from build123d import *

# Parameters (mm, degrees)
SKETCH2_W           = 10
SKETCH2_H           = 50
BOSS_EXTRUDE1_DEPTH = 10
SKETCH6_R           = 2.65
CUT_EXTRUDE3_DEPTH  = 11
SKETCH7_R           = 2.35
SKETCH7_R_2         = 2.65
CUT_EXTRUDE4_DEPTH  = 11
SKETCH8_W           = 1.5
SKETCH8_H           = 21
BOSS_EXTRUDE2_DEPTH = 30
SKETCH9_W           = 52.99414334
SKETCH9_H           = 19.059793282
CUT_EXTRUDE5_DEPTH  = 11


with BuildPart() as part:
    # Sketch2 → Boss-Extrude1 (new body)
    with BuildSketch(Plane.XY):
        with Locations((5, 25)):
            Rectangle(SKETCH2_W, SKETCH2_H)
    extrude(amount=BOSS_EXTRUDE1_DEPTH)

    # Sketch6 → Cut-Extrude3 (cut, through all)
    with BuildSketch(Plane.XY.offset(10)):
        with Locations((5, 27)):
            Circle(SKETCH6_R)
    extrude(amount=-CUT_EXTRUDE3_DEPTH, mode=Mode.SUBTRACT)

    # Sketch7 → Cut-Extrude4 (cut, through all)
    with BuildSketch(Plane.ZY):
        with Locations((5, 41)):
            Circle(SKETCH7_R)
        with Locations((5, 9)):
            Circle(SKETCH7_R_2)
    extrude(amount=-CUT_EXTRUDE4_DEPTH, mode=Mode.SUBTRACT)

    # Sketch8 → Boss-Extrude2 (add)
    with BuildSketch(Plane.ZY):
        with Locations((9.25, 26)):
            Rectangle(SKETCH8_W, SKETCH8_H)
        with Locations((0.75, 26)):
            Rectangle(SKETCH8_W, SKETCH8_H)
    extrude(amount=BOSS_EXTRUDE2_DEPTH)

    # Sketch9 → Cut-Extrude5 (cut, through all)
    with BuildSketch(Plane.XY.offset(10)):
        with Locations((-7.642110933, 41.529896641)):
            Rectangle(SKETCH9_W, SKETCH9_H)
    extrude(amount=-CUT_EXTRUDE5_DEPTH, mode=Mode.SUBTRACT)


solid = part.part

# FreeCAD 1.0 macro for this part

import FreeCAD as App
import Part
import Sketcher


def add_polygon(sketch, points):
    """Adds a closed chain of lines whose ends are joined by coincident constraints."""
    first, n = sketch.GeometryCount, len(points)
    for a, b in zip(points, points[1:] + points[:1]):
        sketch.addGeometry(Part.LineSegment(App.Vector(*a, 0), App.Vector(*b, 0)), False)
    for i in range(n):
        sketch.addConstraint(Sketcher.Constraint("Coincident", first + i, 2, first + (i + 1) % n, 1))

doc = App.newDocument("Part")
params = doc.addObject("Spreadsheet::Sheet", "Params")
for row, (alias, value) in enumerate([
    ("sketch1_width", "10 mm"),
    ("sketch1_height", "50 mm"),
    ("pad1_length", "10 mm"),
    ("sketch2_diameter", "5.3 mm"),
    ("sketch3_diameter", "4.7 mm"),
    ("sketch3_diameter2", "5.3 mm"),
    ("sketch4_width", "21 mm"),
    ("sketch4_height", "1.5 mm"),
    ("pad2_length", "30 mm"),
], start=1):
    params.set(f"A{row}", alias)
    params.set(f"B{row}", "=" + value)
    params.setAlias(f"B{row}", alias)

body = doc.addObject("PartDesign::Body", "Body")

# Sketch on XY plane
sketch1 = doc.addObject("Sketcher::SketchObject", "Sketch")
body.addObject(sketch1)
sketch1.AttachmentSupport = (doc.XY_Plane, [""])
sketch1.MapMode = "FlatFace"
add_polygon(sketch1, [(0, 50), (0, 0), (10, 0), (10, 50)])  # lines 0-3
sketch1.addConstraint([
    Sketcher.Constraint("Vertical", 0),
    Sketcher.Constraint("Horizontal", 1),
    Sketcher.Constraint("Vertical", 2),
    Sketcher.Constraint("Horizontal", 3),
    Sketcher.Constraint("Coincident", 0, 2, -1, 1),
    Sketcher.Constraint("DistanceX", 1, 1, 1, 2, 10.0),
    Sketcher.Constraint("DistanceY", 0, 2, 0, 1, 50.0),
])
sketch1.setExpression("Constraints[9]", "Params.sketch1_width")
sketch1.setExpression("Constraints[10]", "Params.sketch1_height")
pad1 = doc.addObject("PartDesign::Pad", "Pad")
body.addObject(pad1)
pad1.Profile = sketch1
pad1.setExpression("Length", "Params.pad1_length")

# Sketch on XY plane
sketch2 = doc.addObject("Sketcher::SketchObject", "Sketch001")
body.addObject(sketch2)
sketch2.AttachmentSupport = (doc.XY_Plane, [""])
sketch2.MapMode = "FlatFace"
sketch2.AttachmentOffset = App.Placement(App.Vector(0, 0, 10), App.Rotation())
sketch2.addGeometry(Part.Circle(App.Vector(5, 27, 0), App.Vector(0, 0, 1), 2.65), False)
sketch2.addConstraint([
    Sketcher.Constraint("Diameter", 0, 5.3),
    Sketcher.Constraint("DistanceX", -1, 1, 0, 3, 5.0),
    Sketcher.Constraint("DistanceY", -1, 1, 0, 3, 27.0),
])
sketch2.setExpression("Constraints[0]", "Params.sketch2_diameter")
pocket1 = doc.addObject("PartDesign::Pocket", "Pocket")
body.addObject(pocket1)
pocket1.Profile = sketch2
pocket1.Type = "ThroughAll"

# Sketch on YZ plane
sketch3 = doc.addObject("Sketcher::SketchObject", "Sketch002")
body.addObject(sketch3)
sketch3.AttachmentSupport = (doc.YZ_Plane, [""])
sketch3.MapMode = "FlatFace"
sketch3.addGeometry([
    Part.Circle(App.Vector(41, 5, 0), App.Vector(0, 0, 1), 2.35),
    Part.Circle(App.Vector(9, 5, 0), App.Vector(0, 0, 1), 2.65),
], False)
sketch3.addConstraint([
    Sketcher.Constraint("Horizontal", 0, 3, 1, 3),
    Sketcher.Constraint("Diameter", 0, 4.7),
    Sketcher.Constraint("Diameter", 1, 5.3),
    Sketcher.Constraint("DistanceX", -1, 1, 0, 3, 41.0),
    Sketcher.Constraint("DistanceY", -1, 1, 0, 3, 5.0),
    Sketcher.Constraint("DistanceX", -1, 1, 1, 3, 9.0),
])
sketch3.setExpression("Constraints[1]", "Params.sketch3_diameter")
sketch3.setExpression("Constraints[2]", "Params.sketch3_diameter2")
pocket2 = doc.addObject("PartDesign::Pocket", "Pocket001")
body.addObject(pocket2)
pocket2.Profile = sketch3
pocket2.Type = "ThroughAll"
pocket2.Reversed = True

# Sketch on YZ plane
sketch4 = doc.addObject("Sketcher::SketchObject", "Sketch003")
body.addObject(sketch4)
sketch4.AttachmentSupport = (doc.YZ_Plane, [""])
sketch4.MapMode = "FlatFace"
add_polygon(sketch4, [(36.5, 8.5), (15.5, 8.5), (15.5, 10), (36.5, 10)])  # lines 0-3
add_polygon(sketch4, [(36.5, 0), (15.5, 0), (15.5, 1.5), (36.5, 1.5)])  # lines 4-7
sketch4.addConstraint([
    Sketcher.Constraint("Horizontal", 0),
    Sketcher.Constraint("Vertical", 1),
    Sketcher.Constraint("Horizontal", 2),
    Sketcher.Constraint("Vertical", 3),
    Sketcher.Constraint("Horizontal", 4),
    Sketcher.Constraint("Vertical", 5),
    Sketcher.Constraint("Horizontal", 6),
    Sketcher.Constraint("Vertical", 7),
    Sketcher.Constraint("PointOnObject", 4, 2, -1),
    Sketcher.Constraint("Vertical", 1, 2, 4, 2),
    Sketcher.Constraint("Vertical", 3, 2, 6, 2),
    Sketcher.Constraint("Equal", 3, 5),
    Sketcher.Constraint("DistanceX", 0, 2, 0, 1, 21.0),
    Sketcher.Constraint("DistanceY", 1, 1, 1, 2, 1.5),
    Sketcher.Constraint("DistanceY", -1, 1, 1, 2, 10.0),
    Sketcher.Constraint("DistanceX", -1, 1, 0, 2, 15.5),
])
sketch4.setExpression("Constraints[20]", "Params.sketch4_width")
sketch4.setExpression("Constraints[21]", "Params.sketch4_height")
pad2 = doc.addObject("PartDesign::Pad", "Pad001")
body.addObject(pad2)
pad2.Profile = sketch4
pad2.setExpression("Length", "Params.pad2_length")
pad2.Reversed = True

# Sketch on XY plane
sketch5 = doc.addObject("Sketcher::SketchObject", "Sketch004")
body.addObject(sketch5)
sketch5.AttachmentSupport = (doc.XY_Plane, [""])
sketch5.MapMode = "FlatFace"
sketch5.AttachmentOffset = App.Placement(App.Vector(0, 0, 10), App.Rotation())
add_polygon(sketch5, [(-34.139183, 51.059793), (-34.139183, 32), (18.854961, 32), (18.854961, 51.059793)])  # lines 0-3
sketch5.addConstraint([
    Sketcher.Constraint("Vertical", 0),
    Sketcher.Constraint("Horizontal", 1),
    Sketcher.Constraint("Vertical", 2),
    Sketcher.Constraint("Horizontal", 3),
    Sketcher.Constraint("DistanceY", -1, 1, 0, 2, 32.0),
    Sketcher.Constraint("DistanceX", 1, 1, 1, 2, 52.994143),
    Sketcher.Constraint("DistanceY", 0, 2, 0, 1, 19.059793),
    Sketcher.Constraint("DistanceX", -1, 1, 1, 2, 18.854961),
])
pocket3 = doc.addObject("PartDesign::Pocket", "Pocket002")
body.addObject(pocket3)
pocket3.Profile = sketch5
pocket3.Type = "ThroughAll"

doc.recompute()
